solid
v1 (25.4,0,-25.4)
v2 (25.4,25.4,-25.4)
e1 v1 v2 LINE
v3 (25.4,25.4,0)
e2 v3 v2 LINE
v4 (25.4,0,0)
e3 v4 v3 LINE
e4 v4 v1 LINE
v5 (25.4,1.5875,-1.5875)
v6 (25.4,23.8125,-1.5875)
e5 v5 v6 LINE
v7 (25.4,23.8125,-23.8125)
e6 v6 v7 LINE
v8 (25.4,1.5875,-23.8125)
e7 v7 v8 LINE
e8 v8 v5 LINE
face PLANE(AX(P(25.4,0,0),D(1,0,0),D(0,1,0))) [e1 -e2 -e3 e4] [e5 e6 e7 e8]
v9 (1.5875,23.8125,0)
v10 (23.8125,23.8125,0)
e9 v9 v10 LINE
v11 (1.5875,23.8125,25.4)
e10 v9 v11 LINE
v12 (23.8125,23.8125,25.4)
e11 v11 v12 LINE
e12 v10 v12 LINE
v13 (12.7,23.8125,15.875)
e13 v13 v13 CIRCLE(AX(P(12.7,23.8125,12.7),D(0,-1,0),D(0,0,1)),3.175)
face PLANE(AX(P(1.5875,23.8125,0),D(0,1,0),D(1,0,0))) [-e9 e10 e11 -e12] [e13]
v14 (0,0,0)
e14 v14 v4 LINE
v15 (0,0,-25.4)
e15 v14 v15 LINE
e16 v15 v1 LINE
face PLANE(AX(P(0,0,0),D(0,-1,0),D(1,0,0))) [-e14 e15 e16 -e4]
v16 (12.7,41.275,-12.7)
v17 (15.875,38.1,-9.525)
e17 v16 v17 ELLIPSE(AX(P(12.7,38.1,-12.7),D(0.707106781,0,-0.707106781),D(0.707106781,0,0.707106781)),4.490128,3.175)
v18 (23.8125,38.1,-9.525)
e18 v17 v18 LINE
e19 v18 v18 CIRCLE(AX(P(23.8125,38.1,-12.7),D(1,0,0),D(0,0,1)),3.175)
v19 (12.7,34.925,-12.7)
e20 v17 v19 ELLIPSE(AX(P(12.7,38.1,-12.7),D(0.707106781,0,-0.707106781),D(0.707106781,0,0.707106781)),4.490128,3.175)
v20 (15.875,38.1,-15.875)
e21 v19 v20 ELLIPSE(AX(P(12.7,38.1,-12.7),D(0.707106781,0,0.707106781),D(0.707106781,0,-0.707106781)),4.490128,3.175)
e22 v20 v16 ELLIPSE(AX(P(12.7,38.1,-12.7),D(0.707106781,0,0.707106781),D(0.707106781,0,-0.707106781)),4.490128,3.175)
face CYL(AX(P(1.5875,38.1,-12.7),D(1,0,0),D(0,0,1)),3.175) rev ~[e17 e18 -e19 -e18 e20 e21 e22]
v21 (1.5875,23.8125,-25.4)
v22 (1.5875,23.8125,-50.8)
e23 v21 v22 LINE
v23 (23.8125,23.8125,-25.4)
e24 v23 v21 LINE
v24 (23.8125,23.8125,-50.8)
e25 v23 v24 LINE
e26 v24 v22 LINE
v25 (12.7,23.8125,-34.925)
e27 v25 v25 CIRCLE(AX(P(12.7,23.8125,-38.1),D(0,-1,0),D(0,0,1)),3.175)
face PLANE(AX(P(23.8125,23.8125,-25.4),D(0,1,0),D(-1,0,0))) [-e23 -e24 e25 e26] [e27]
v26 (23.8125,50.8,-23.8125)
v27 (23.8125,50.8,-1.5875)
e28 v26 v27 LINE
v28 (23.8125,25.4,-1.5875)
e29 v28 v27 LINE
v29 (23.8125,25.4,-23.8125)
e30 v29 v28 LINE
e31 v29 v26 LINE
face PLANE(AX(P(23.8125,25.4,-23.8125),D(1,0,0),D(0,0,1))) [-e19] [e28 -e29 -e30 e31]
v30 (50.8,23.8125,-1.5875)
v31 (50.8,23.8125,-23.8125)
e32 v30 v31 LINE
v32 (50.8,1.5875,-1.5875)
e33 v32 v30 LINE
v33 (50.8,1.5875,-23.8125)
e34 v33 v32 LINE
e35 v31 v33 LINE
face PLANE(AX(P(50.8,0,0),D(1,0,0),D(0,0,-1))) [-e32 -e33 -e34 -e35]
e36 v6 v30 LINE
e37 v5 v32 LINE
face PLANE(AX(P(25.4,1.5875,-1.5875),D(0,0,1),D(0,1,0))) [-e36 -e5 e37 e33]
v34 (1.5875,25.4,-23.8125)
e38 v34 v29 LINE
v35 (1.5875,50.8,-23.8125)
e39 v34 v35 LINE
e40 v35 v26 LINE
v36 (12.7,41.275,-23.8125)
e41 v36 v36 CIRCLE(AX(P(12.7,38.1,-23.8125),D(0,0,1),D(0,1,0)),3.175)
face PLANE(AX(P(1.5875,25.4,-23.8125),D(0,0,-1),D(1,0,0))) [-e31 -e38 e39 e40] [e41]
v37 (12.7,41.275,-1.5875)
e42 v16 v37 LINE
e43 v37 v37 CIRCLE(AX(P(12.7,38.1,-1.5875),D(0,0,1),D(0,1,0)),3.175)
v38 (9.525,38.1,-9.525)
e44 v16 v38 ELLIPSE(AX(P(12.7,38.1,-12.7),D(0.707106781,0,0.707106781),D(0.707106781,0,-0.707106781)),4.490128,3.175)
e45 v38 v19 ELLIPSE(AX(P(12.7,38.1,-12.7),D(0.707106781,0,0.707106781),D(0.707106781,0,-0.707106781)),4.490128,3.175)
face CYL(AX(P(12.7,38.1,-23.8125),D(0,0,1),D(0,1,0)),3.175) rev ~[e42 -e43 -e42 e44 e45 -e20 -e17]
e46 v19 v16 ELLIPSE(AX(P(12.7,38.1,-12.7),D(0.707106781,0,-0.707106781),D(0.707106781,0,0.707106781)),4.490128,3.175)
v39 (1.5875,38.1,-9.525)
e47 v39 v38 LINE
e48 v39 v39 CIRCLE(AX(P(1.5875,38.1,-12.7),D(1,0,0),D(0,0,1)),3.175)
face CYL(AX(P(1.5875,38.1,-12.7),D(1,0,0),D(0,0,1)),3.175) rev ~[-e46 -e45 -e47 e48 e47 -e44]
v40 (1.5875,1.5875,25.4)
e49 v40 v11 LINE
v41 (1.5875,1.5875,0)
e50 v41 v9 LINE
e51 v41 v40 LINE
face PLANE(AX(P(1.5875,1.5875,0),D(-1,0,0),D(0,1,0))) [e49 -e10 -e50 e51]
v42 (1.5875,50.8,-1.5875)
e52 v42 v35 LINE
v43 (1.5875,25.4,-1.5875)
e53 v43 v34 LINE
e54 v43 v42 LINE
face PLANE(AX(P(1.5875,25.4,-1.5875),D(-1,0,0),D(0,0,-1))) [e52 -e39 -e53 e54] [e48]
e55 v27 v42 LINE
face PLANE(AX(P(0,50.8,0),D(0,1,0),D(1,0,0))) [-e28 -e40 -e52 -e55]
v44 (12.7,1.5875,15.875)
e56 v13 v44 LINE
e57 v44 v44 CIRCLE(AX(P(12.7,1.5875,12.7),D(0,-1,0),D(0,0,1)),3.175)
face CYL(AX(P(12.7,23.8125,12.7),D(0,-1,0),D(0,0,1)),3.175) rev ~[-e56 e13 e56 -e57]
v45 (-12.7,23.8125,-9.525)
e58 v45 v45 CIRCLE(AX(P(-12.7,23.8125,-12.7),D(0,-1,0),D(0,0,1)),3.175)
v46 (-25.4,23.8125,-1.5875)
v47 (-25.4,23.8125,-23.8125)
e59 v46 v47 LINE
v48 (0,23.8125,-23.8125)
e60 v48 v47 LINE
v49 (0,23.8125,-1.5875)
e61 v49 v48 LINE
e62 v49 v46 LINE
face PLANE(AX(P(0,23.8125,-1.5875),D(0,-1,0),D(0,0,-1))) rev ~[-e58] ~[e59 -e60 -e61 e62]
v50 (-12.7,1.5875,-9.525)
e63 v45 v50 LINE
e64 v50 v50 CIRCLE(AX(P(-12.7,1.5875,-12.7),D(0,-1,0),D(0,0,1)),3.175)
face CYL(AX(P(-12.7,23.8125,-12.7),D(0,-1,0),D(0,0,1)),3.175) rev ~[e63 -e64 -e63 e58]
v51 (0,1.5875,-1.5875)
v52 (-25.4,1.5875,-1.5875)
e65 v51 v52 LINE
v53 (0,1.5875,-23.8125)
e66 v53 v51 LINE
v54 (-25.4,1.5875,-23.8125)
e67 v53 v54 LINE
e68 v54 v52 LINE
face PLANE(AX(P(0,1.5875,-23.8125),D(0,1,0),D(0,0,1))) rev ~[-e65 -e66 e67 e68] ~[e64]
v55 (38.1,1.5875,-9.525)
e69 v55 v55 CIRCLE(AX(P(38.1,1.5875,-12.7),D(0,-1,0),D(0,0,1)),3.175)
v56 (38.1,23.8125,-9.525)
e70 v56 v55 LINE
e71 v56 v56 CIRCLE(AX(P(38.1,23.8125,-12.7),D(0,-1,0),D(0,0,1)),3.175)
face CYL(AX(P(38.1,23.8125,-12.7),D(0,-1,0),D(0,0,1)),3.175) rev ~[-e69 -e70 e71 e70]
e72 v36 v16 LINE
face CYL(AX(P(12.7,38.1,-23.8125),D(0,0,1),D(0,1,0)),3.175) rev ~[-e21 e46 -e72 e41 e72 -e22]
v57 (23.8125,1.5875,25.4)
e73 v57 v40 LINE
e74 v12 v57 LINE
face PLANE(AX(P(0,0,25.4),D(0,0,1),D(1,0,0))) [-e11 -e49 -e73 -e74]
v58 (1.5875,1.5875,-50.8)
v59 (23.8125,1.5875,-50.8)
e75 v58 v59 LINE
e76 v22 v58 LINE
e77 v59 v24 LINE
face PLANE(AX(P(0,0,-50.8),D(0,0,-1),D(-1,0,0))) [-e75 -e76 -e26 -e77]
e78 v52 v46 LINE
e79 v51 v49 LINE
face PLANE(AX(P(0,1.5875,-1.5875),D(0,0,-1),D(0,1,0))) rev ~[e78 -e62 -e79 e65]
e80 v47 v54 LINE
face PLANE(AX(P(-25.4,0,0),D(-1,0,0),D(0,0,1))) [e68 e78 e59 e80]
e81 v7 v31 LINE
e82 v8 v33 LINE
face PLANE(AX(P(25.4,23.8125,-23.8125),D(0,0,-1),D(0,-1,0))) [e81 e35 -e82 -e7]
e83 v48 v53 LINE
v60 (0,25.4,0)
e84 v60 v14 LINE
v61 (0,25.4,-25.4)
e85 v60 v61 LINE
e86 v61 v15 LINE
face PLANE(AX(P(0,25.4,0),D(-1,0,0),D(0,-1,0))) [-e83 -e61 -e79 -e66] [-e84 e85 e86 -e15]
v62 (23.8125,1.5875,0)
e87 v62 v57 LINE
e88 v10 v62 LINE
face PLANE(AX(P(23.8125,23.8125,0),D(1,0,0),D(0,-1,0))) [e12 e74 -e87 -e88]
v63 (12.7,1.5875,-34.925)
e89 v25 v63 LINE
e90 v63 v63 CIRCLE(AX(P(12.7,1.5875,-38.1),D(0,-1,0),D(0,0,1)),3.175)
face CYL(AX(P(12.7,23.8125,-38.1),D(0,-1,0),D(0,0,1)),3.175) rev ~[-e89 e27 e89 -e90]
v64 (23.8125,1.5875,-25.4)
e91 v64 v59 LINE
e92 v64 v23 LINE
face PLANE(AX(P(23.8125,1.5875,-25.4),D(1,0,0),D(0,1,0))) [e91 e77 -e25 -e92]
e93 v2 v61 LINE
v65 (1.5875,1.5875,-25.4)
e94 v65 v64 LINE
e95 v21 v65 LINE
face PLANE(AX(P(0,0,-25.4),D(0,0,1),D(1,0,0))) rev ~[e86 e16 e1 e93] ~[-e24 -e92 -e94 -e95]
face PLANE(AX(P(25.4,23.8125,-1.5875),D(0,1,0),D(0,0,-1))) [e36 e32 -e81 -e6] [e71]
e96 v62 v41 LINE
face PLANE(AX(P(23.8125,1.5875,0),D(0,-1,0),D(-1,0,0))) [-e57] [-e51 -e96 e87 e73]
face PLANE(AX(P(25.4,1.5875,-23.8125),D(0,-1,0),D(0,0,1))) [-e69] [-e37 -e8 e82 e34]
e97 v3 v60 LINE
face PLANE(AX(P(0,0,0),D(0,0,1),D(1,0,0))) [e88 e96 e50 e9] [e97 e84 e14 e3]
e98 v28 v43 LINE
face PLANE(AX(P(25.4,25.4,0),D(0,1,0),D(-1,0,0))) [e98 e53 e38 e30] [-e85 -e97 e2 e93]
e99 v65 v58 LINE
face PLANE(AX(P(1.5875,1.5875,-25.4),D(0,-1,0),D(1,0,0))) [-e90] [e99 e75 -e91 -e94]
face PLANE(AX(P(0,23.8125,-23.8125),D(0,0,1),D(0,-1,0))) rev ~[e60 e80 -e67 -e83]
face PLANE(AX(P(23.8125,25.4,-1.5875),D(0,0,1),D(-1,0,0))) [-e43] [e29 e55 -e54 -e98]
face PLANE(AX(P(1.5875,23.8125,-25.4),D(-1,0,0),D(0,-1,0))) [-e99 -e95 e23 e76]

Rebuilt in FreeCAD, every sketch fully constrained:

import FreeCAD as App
import Part
import Sketcher

V = App.Vector
Q = App.Units.Quantity

doc = App.newDocument("Part")
params = doc.addObject("Spreadsheet::Sheet", "Params")
for row, (alias, value) in enumerate([
    ("sketch1_width", "1 in"),
    ("pad1_length", "1 in"),
    ("sketch2_width", "0.875 in"),
    ("pad2_length", "1 in"),
    ("sketch3_width", "0.875 in"),
    ("pad3_length", "1 in"),
    ("sketch4_width", "0.875 in"),
    ("pad4_length", "1 in"),
    ("sketch5_width", "0.875 in"),
    ("pad5_length", "1 in"),
    ("sketch6_width", "0.875 in"),
    ("pad6_length", "1 in"),
    ("sketch7_diameter", "0.25 in"),
    ("hole_diameter", "0.25 in"),
    ("hole_depth", "1 in"),
    ("sketch8_diameter", "0.25 in"),
    ("hole2_diameter", "0.25 in"),
    ("hole2_depth", "1 in"),
    ("sketch9_diameter", "0.25 in"),
    ("hole3_diameter", "0.25 in"),
    ("hole3_depth", "1 in"),
], start=1):
    params.set(f"A{row}", alias)
    params.set(f"B{row}", "=" + value)
    params.setAlias(f"B{row}", alias)

body = doc.addObject("PartDesign::Body", "Body")

# Sketch on XY plane
sketch1 = body.newObject("Sketcher::SketchObject", "Sketch")
sketch1.AttachmentSupport = (doc.getObject("XY_Plane"), [""])
sketch1.MapMode = "FlatFace"
sketch1.addGeometry([
    Part.LineSegment(V(0, 25, 0), V(0, 0, 0)),
    Part.LineSegment(V(0, 0, 0), V(25, 0, 0)),
    Part.LineSegment(V(25, 0, 0), V(25, 25, 0)),
    Part.LineSegment(V(25, 25, 0), V(0, 25, 0)),
], False)
sketch1.addConstraint([
    Sketcher.Constraint("Coincident", 0, 2, 1, 1),
    Sketcher.Constraint("Coincident", 1, 2, 2, 1),
    Sketcher.Constraint("Coincident", 2, 2, 3, 1),
    Sketcher.Constraint("Coincident", 3, 2, 0, 1),
    Sketcher.Constraint("Vertical", 0),
    Sketcher.Constraint("Horizontal", 1),
    Sketcher.Constraint("Vertical", 2),
    Sketcher.Constraint("Horizontal", 3),
    Sketcher.Constraint("Coincident", 0, 2, -1, 1),
    Sketcher.Constraint("Equal", 3, 0),
    Sketcher.Constraint("DistanceX", 1, 1, 1, 2, Q("1 in")),
])
sketch1.setExpression("Constraints[10]", "Params.sketch1_width")
pad1 = body.newObject("PartDesign::Pad", "Pad")
pad1.Profile = sketch1
pad1.setExpression("Length", "Params.pad1_length")
pad1.Reversed = True

# Sketch on XY plane
sketch2 = body.newObject("Sketcher::SketchObject", "Sketch001")
sketch2.AttachmentSupport = (doc.getObject("XY_Plane"), [""])
sketch2.MapMode = "FlatFace"
sketch2.addGeometry([
    Part.LineSegment(V(24, 24, 0), V(2, 24, 0)),
    Part.LineSegment(V(2, 24, 0), V(2, 2, 0)),
    Part.LineSegment(V(2, 2, 0), V(24, 2, 0)),
    Part.LineSegment(V(24, 2, 0), V(24, 24, 0)),
], False)
sketch2.addConstraint([
    Sketcher.Constraint("Coincident", 0, 2, 1, 1),
    Sketcher.Constraint("Coincident", 1, 2, 2, 1),
    Sketcher.Constraint("Coincident", 2, 2, 3, 1),
    Sketcher.Constraint("Coincident", 3, 2, 0, 1),
    Sketcher.Constraint("Horizontal", 0),
    Sketcher.Constraint("Vertical", 1),
    Sketcher.Constraint("Horizontal", 2),
    Sketcher.Constraint("Vertical", 3),
    Sketcher.Constraint("Equal", 2, 1),
    Sketcher.Constraint("DistanceX", -1, 1, 0, 2, Q("0.0625 in")),
    Sketcher.Constraint("DistanceY", -1, 1, 1, 2, Q("0.0625 in")),
    Sketcher.Constraint("DistanceX", 0, 2, 0, 1, Q("0.875 in")),
])
sketch2.setExpression("Constraints[11]", "Params.sketch2_width")
pad2 = body.newObject("PartDesign::Pad", "Pad001")
pad2.Profile = sketch2
pad2.setExpression("Length", "Params.pad2_length")

# Sketch on YZ plane
sketch3 = body.newObject("Sketcher::SketchObject", "Sketch002")
sketch3.AttachmentSupport = (doc.getObject("YZ_Plane"), [""])
sketch3.MapMode = "FlatFace"
sketch3.AttachmentOffset = App.Placement(V(0, 0, 1 * 25.4), App.Rotation())
sketch3.addGeometry([
    Part.LineSegment(V(2, -24, 0), V(24, -24, 0)),
    Part.LineSegment(V(24, -24, 0), V(24, -2, 0)),
    Part.LineSegment(V(24, -2, 0), V(2, -2, 0)),
    Part.LineSegment(V(2, -2, 0), V(2, -24, 0)),
], False)
sketch3.addConstraint([
    Sketcher.Constraint("Coincident", 0, 2, 1, 1),
    Sketcher.Constraint("Coincident", 1, 2, 2, 1),
    Sketcher.Constraint("Coincident", 2, 2, 3, 1),
    Sketcher.Constraint("Coincident", 3, 2, 0, 1),
    Sketcher.Constraint("Horizontal", 0),
    Sketcher.Constraint("Vertical", 1),
    Sketcher.Constraint("Horizontal", 2),
    Sketcher.Constraint("Vertical", 3),
    Sketcher.Constraint("Equal", 2, 1),
    Sketcher.Constraint("DistanceY", 1, 2, -1, 1, Q("0.0625 in")),
    Sketcher.Constraint("DistanceX", -1, 1, 2, 2, Q("0.0625 in")),
    Sketcher.Constraint("DistanceX", 0, 1, 0, 2, Q("0.875 in")),
])
sketch3.setExpression("Constraints[11]", "Params.sketch3_width")
pad3 = body.newObject("PartDesign::Pad", "Pad002")
pad3.Profile = sketch3
pad3.setExpression("Length", "Params.pad3_length")

# Sketch on XZ plane
sketch4 = body.newObject("Sketcher::SketchObject", "Sketch003")
sketch4.AttachmentSupport = (doc.getObject("XZ_Plane"), [""])
sketch4.MapMode = "FlatFace"
sketch4.AttachmentOffset = App.Placement(V(0, 0, -1 * 25.4), App.Rotation())
sketch4.addGeometry([
    Part.LineSegment(V(24, -24, 0), V(2, -24, 0)),
    Part.LineSegment(V(2, -24, 0), V(2, -2, 0)),
    Part.LineSegment(V(2, -2, 0), V(24, -2, 0)),
    Part.LineSegment(V(24, -2, 0), V(24, -24, 0)),
], False)
sketch4.addConstraint([
    Sketcher.Constraint("Coincident", 0, 2, 1, 1),
    Sketcher.Constraint("Coincident", 1, 2, 2, 1),
    Sketcher.Constraint("Coincident", 2, 2, 3, 1),
    Sketcher.Constraint("Coincident", 3, 2, 0, 1),
    Sketcher.Constraint("Horizontal", 0),
    Sketcher.Constraint("Vertical", 1),
    Sketcher.Constraint("Horizontal", 2),
    Sketcher.Constraint("Vertical", 3),
    Sketcher.Constraint("Equal", 2, 1),
    Sketcher.Constraint("DistanceX", -1, 1, 0, 2, Q("0.0625 in")),
    Sketcher.Constraint("DistanceY", 1, 2, -1, 1, Q("0.0625 in")),
    Sketcher.Constraint("DistanceX", 0, 2, 0, 1, Q("0.875 in")),
])
sketch4.setExpression("Constraints[11]", "Params.sketch4_width")
pad4 = body.newObject("PartDesign::Pad", "Pad003")
pad4.Profile = sketch4
pad4.setExpression("Length", "Params.pad4_length")
pad4.Reversed = True

# Sketch on YZ plane
sketch5 = body.newObject("Sketcher::SketchObject", "Sketch004")
sketch5.AttachmentSupport = (doc.getObject("YZ_Plane"), [""])
sketch5.MapMode = "FlatFace"
sketch5.addGeometry([
    Part.LineSegment(V(24, -2, 0), V(24, -24, 0)),
    Part.LineSegment(V(24, -24, 0), V(2, -24, 0)),
    Part.LineSegment(V(2, -24, 0), V(2, -2, 0)),
    Part.LineSegment(V(2, -2, 0), V(24, -2, 0)),
], False)
sketch5.addConstraint([
    Sketcher.Constraint("Coincident", 0, 2, 1, 1),
    Sketcher.Constraint("Coincident", 1, 2, 2, 1),
    Sketcher.Constraint("Coincident", 2, 2, 3, 1),
    Sketcher.Constraint("Coincident", 3, 2, 0, 1),
    Sketcher.Constraint("Vertical", 0),
    Sketcher.Constraint("Horizontal", 1),
    Sketcher.Constraint("Vertical", 2),
    Sketcher.Constraint("Horizontal", 3),
    Sketcher.Constraint("Equal", 3, 0),
    Sketcher.Constraint("DistanceX", -1, 1, 1, 2, Q("0.0625 in")),
    Sketcher.Constraint("DistanceY", 2, 2, -1, 1, Q("0.0625 in")),
    Sketcher.Constraint("DistanceX", 1, 2, 1, 1, Q("0.875 in")),
])
sketch5.setExpression("Constraints[11]", "Params.sketch5_width")
pad5 = body.newObject("PartDesign::Pad", "Pad004")
pad5.Profile = sketch5
pad5.setExpression("Length", "Params.pad5_length")
pad5.Reversed = True

# Sketch on XY plane
sketch6 = body.newObject("Sketcher::SketchObject", "Sketch005")
sketch6.AttachmentSupport = (doc.getObject("XY_Plane"), [""])
sketch6.MapMode = "FlatFace"
sketch6.AttachmentOffset = App.Placement(V(0, 0, -1 * 25.4), App.Rotation())
sketch6.addGeometry([
    Part.LineSegment(V(2, 2, 0), V(2, 24, 0)),
    Part.LineSegment(V(2, 24, 0), V(24, 24, 0)),
    Part.LineSegment(V(24, 24, 0), V(24, 2, 0)),
    Part.LineSegment(V(24, 2, 0), V(2, 2, 0)),
], False)
sketch6.addConstraint([
    Sketcher.Constraint("Coincident", 0, 2, 1, 1),
    Sketcher.Constraint("Coincident", 1, 2, 2, 1),
    Sketcher.Constraint("Coincident", 2, 2, 3, 1),
    Sketcher.Constraint("Coincident", 3, 2, 0, 1),
    Sketcher.Constraint("Vertical", 0),
    Sketcher.Constraint("Horizontal", 1),
    Sketcher.Constraint("Vertical", 2),
    Sketcher.Constraint("Horizontal", 3),
    Sketcher.Constraint("Equal", 3, 0),
    Sketcher.Constraint("DistanceX", -1, 1, 0, 2, Q("0.0625 in")),
    Sketcher.Constraint("DistanceY", -1, 1, 2, 2, Q("0.0625 in")),
    Sketcher.Constraint("DistanceX", 1, 1, 1, 2, Q("0.875 in")),
])
sketch6.setExpression("Constraints[11]", "Params.sketch6_width")
pad6 = body.newObject("PartDesign::Pad", "Pad005")
pad6.Profile = sketch6
pad6.setExpression("Length", "Params.pad6_length")
pad6.Reversed = True

# Sketch on XZ plane
sketch7 = body.newObject("Sketcher::SketchObject", "Sketch006")
sketch7.AttachmentSupport = (doc.getObject("XZ_Plane"), [""])
sketch7.MapMode = "FlatFace"
sketch7.AttachmentOffset = App.Placement(V(0, 0, -0.9375 * 25.4), App.Rotation())
sketch7.addGeometry([
    Part.Circle(V(12.7, 12.7, 0), V(0, 0, 1), 3.2),
    Part.Circle(V(-12.7, -12.7, 0), V(0, 0, 1), 3.2),
    Part.Circle(V(12.7, -38.1, 0), V(0, 0, 1), 3.2),
    Part.Circle(V(38.1, -12.7, 0), V(0, 0, 1), 3.2),
], False)
sketch7.addConstraint([
    Sketcher.Constraint("Equal", 0, 1),
    Sketcher.Constraint("Equal", 1, 2),
    Sketcher.Constraint("Equal", 2, 3),
    Sketcher.Constraint("Symmetric", 0, 3, 1, 3, -1, 1),
    Sketcher.Constraint("Horizontal", 1, 3, 3, 3),
    Sketcher.Constraint("Vertical", 0, 3, 2, 3),
    Sketcher.Constraint("Diameter", 0, Q("0.25 in")),
    Sketcher.Constraint("DistanceX", 1, 3, 0, 3, Q("1 in")),
    Sketcher.Constraint("DistanceY", 1, 3, 0, 3, Q("1 in")),
    Sketcher.Constraint("DistanceY", 2, 3, 1, 3, Q("1 in")),
    Sketcher.Constraint("DistanceX", 0, 3, 3, 3, Q("1 in")),
])
sketch7.setExpression("Constraints[6]", "Params.sketch7_diameter")
doc.recompute()
hole = body.newObject("PartDesign::Hole", "Hole")
hole.Profile = sketch7
hole.ThreadType = "None"
hole.setExpression("Diameter", "Params.hole_diameter")
hole.DepthType = "Dimension"
hole.setExpression("Depth", "Params.hole_depth")
hole.DrillPoint = "Angled"
hole.DrillPointAngle = 118
hole.Reversed = True

# Sketch on YZ plane
sketch8 = body.newObject("Sketcher::SketchObject", "Sketch007")
sketch8.AttachmentSupport = (doc.getObject("YZ_Plane"), [""])
sketch8.MapMode = "FlatFace"
sketch8.AttachmentOffset = App.Placement(V(0, 0, 0.0625 * 25.4), App.Rotation())
sketch8.addGeometry(Part.Circle(V(38.1, -12.7, 0), V(0, 0, 1), 3.2), False)
sketch8.addConstraint([
    Sketcher.Constraint("Diameter", 0, Q("0.25 in")),
    Sketcher.Constraint("DistanceX", -1, 1, 0, 3, Q("1.5 in")),
    Sketcher.Constraint("DistanceY", 0, 3, -1, 1, Q("0.5 in")),
])
sketch8.setExpression("Constraints[0]", "Params.sketch8_diameter")
doc.recompute()
hole2 = body.newObject("PartDesign::Hole", "Hole001")
hole2.Profile = sketch8
hole2.ThreadType = "None"
hole2.setExpression("Diameter", "Params.hole2_diameter")
hole2.DepthType = "Dimension"
hole2.setExpression("Depth", "Params.hole2_depth")
hole2.DrillPoint = "Angled"
hole2.DrillPointAngle = 118
hole2.Reversed = True

# Sketch on XY plane
sketch9 = body.newObject("Sketcher::SketchObject", "Sketch008")
sketch9.AttachmentSupport = (doc.getObject("XY_Plane"), [""])
sketch9.MapMode = "FlatFace"
sketch9.AttachmentOffset = App.Placement(V(0, 0, -0.9375 * 25.4), App.Rotation())
sketch9.addGeometry(Part.Circle(V(12.7, 38.1, 0), V(0, 0, 1), 3.2), False)
sketch9.addConstraint([
    Sketcher.Constraint("Diameter", 0, Q("0.25 in")),
    Sketcher.Constraint("DistanceX", -1, 1, 0, 3, Q("0.5 in")),
    Sketcher.Constraint("DistanceY", -1, 1, 0, 3, Q("1.5 in")),
])
sketch9.setExpression("Constraints[0]", "Params.sketch9_diameter")
doc.recompute()
hole3 = body.newObject("PartDesign::Hole", "Hole002")
hole3.Profile = sketch9
hole3.ThreadType = "None"
hole3.setExpression("Diameter", "Params.hole3_diameter")
hole3.DepthType = "Dimension"
hole3.setExpression("Depth", "Params.hole3_depth")
hole3.DrillPoint = "Angled"
hole3.DrillPointAngle = 118
hole3.Reversed = True

doc.recompute()
